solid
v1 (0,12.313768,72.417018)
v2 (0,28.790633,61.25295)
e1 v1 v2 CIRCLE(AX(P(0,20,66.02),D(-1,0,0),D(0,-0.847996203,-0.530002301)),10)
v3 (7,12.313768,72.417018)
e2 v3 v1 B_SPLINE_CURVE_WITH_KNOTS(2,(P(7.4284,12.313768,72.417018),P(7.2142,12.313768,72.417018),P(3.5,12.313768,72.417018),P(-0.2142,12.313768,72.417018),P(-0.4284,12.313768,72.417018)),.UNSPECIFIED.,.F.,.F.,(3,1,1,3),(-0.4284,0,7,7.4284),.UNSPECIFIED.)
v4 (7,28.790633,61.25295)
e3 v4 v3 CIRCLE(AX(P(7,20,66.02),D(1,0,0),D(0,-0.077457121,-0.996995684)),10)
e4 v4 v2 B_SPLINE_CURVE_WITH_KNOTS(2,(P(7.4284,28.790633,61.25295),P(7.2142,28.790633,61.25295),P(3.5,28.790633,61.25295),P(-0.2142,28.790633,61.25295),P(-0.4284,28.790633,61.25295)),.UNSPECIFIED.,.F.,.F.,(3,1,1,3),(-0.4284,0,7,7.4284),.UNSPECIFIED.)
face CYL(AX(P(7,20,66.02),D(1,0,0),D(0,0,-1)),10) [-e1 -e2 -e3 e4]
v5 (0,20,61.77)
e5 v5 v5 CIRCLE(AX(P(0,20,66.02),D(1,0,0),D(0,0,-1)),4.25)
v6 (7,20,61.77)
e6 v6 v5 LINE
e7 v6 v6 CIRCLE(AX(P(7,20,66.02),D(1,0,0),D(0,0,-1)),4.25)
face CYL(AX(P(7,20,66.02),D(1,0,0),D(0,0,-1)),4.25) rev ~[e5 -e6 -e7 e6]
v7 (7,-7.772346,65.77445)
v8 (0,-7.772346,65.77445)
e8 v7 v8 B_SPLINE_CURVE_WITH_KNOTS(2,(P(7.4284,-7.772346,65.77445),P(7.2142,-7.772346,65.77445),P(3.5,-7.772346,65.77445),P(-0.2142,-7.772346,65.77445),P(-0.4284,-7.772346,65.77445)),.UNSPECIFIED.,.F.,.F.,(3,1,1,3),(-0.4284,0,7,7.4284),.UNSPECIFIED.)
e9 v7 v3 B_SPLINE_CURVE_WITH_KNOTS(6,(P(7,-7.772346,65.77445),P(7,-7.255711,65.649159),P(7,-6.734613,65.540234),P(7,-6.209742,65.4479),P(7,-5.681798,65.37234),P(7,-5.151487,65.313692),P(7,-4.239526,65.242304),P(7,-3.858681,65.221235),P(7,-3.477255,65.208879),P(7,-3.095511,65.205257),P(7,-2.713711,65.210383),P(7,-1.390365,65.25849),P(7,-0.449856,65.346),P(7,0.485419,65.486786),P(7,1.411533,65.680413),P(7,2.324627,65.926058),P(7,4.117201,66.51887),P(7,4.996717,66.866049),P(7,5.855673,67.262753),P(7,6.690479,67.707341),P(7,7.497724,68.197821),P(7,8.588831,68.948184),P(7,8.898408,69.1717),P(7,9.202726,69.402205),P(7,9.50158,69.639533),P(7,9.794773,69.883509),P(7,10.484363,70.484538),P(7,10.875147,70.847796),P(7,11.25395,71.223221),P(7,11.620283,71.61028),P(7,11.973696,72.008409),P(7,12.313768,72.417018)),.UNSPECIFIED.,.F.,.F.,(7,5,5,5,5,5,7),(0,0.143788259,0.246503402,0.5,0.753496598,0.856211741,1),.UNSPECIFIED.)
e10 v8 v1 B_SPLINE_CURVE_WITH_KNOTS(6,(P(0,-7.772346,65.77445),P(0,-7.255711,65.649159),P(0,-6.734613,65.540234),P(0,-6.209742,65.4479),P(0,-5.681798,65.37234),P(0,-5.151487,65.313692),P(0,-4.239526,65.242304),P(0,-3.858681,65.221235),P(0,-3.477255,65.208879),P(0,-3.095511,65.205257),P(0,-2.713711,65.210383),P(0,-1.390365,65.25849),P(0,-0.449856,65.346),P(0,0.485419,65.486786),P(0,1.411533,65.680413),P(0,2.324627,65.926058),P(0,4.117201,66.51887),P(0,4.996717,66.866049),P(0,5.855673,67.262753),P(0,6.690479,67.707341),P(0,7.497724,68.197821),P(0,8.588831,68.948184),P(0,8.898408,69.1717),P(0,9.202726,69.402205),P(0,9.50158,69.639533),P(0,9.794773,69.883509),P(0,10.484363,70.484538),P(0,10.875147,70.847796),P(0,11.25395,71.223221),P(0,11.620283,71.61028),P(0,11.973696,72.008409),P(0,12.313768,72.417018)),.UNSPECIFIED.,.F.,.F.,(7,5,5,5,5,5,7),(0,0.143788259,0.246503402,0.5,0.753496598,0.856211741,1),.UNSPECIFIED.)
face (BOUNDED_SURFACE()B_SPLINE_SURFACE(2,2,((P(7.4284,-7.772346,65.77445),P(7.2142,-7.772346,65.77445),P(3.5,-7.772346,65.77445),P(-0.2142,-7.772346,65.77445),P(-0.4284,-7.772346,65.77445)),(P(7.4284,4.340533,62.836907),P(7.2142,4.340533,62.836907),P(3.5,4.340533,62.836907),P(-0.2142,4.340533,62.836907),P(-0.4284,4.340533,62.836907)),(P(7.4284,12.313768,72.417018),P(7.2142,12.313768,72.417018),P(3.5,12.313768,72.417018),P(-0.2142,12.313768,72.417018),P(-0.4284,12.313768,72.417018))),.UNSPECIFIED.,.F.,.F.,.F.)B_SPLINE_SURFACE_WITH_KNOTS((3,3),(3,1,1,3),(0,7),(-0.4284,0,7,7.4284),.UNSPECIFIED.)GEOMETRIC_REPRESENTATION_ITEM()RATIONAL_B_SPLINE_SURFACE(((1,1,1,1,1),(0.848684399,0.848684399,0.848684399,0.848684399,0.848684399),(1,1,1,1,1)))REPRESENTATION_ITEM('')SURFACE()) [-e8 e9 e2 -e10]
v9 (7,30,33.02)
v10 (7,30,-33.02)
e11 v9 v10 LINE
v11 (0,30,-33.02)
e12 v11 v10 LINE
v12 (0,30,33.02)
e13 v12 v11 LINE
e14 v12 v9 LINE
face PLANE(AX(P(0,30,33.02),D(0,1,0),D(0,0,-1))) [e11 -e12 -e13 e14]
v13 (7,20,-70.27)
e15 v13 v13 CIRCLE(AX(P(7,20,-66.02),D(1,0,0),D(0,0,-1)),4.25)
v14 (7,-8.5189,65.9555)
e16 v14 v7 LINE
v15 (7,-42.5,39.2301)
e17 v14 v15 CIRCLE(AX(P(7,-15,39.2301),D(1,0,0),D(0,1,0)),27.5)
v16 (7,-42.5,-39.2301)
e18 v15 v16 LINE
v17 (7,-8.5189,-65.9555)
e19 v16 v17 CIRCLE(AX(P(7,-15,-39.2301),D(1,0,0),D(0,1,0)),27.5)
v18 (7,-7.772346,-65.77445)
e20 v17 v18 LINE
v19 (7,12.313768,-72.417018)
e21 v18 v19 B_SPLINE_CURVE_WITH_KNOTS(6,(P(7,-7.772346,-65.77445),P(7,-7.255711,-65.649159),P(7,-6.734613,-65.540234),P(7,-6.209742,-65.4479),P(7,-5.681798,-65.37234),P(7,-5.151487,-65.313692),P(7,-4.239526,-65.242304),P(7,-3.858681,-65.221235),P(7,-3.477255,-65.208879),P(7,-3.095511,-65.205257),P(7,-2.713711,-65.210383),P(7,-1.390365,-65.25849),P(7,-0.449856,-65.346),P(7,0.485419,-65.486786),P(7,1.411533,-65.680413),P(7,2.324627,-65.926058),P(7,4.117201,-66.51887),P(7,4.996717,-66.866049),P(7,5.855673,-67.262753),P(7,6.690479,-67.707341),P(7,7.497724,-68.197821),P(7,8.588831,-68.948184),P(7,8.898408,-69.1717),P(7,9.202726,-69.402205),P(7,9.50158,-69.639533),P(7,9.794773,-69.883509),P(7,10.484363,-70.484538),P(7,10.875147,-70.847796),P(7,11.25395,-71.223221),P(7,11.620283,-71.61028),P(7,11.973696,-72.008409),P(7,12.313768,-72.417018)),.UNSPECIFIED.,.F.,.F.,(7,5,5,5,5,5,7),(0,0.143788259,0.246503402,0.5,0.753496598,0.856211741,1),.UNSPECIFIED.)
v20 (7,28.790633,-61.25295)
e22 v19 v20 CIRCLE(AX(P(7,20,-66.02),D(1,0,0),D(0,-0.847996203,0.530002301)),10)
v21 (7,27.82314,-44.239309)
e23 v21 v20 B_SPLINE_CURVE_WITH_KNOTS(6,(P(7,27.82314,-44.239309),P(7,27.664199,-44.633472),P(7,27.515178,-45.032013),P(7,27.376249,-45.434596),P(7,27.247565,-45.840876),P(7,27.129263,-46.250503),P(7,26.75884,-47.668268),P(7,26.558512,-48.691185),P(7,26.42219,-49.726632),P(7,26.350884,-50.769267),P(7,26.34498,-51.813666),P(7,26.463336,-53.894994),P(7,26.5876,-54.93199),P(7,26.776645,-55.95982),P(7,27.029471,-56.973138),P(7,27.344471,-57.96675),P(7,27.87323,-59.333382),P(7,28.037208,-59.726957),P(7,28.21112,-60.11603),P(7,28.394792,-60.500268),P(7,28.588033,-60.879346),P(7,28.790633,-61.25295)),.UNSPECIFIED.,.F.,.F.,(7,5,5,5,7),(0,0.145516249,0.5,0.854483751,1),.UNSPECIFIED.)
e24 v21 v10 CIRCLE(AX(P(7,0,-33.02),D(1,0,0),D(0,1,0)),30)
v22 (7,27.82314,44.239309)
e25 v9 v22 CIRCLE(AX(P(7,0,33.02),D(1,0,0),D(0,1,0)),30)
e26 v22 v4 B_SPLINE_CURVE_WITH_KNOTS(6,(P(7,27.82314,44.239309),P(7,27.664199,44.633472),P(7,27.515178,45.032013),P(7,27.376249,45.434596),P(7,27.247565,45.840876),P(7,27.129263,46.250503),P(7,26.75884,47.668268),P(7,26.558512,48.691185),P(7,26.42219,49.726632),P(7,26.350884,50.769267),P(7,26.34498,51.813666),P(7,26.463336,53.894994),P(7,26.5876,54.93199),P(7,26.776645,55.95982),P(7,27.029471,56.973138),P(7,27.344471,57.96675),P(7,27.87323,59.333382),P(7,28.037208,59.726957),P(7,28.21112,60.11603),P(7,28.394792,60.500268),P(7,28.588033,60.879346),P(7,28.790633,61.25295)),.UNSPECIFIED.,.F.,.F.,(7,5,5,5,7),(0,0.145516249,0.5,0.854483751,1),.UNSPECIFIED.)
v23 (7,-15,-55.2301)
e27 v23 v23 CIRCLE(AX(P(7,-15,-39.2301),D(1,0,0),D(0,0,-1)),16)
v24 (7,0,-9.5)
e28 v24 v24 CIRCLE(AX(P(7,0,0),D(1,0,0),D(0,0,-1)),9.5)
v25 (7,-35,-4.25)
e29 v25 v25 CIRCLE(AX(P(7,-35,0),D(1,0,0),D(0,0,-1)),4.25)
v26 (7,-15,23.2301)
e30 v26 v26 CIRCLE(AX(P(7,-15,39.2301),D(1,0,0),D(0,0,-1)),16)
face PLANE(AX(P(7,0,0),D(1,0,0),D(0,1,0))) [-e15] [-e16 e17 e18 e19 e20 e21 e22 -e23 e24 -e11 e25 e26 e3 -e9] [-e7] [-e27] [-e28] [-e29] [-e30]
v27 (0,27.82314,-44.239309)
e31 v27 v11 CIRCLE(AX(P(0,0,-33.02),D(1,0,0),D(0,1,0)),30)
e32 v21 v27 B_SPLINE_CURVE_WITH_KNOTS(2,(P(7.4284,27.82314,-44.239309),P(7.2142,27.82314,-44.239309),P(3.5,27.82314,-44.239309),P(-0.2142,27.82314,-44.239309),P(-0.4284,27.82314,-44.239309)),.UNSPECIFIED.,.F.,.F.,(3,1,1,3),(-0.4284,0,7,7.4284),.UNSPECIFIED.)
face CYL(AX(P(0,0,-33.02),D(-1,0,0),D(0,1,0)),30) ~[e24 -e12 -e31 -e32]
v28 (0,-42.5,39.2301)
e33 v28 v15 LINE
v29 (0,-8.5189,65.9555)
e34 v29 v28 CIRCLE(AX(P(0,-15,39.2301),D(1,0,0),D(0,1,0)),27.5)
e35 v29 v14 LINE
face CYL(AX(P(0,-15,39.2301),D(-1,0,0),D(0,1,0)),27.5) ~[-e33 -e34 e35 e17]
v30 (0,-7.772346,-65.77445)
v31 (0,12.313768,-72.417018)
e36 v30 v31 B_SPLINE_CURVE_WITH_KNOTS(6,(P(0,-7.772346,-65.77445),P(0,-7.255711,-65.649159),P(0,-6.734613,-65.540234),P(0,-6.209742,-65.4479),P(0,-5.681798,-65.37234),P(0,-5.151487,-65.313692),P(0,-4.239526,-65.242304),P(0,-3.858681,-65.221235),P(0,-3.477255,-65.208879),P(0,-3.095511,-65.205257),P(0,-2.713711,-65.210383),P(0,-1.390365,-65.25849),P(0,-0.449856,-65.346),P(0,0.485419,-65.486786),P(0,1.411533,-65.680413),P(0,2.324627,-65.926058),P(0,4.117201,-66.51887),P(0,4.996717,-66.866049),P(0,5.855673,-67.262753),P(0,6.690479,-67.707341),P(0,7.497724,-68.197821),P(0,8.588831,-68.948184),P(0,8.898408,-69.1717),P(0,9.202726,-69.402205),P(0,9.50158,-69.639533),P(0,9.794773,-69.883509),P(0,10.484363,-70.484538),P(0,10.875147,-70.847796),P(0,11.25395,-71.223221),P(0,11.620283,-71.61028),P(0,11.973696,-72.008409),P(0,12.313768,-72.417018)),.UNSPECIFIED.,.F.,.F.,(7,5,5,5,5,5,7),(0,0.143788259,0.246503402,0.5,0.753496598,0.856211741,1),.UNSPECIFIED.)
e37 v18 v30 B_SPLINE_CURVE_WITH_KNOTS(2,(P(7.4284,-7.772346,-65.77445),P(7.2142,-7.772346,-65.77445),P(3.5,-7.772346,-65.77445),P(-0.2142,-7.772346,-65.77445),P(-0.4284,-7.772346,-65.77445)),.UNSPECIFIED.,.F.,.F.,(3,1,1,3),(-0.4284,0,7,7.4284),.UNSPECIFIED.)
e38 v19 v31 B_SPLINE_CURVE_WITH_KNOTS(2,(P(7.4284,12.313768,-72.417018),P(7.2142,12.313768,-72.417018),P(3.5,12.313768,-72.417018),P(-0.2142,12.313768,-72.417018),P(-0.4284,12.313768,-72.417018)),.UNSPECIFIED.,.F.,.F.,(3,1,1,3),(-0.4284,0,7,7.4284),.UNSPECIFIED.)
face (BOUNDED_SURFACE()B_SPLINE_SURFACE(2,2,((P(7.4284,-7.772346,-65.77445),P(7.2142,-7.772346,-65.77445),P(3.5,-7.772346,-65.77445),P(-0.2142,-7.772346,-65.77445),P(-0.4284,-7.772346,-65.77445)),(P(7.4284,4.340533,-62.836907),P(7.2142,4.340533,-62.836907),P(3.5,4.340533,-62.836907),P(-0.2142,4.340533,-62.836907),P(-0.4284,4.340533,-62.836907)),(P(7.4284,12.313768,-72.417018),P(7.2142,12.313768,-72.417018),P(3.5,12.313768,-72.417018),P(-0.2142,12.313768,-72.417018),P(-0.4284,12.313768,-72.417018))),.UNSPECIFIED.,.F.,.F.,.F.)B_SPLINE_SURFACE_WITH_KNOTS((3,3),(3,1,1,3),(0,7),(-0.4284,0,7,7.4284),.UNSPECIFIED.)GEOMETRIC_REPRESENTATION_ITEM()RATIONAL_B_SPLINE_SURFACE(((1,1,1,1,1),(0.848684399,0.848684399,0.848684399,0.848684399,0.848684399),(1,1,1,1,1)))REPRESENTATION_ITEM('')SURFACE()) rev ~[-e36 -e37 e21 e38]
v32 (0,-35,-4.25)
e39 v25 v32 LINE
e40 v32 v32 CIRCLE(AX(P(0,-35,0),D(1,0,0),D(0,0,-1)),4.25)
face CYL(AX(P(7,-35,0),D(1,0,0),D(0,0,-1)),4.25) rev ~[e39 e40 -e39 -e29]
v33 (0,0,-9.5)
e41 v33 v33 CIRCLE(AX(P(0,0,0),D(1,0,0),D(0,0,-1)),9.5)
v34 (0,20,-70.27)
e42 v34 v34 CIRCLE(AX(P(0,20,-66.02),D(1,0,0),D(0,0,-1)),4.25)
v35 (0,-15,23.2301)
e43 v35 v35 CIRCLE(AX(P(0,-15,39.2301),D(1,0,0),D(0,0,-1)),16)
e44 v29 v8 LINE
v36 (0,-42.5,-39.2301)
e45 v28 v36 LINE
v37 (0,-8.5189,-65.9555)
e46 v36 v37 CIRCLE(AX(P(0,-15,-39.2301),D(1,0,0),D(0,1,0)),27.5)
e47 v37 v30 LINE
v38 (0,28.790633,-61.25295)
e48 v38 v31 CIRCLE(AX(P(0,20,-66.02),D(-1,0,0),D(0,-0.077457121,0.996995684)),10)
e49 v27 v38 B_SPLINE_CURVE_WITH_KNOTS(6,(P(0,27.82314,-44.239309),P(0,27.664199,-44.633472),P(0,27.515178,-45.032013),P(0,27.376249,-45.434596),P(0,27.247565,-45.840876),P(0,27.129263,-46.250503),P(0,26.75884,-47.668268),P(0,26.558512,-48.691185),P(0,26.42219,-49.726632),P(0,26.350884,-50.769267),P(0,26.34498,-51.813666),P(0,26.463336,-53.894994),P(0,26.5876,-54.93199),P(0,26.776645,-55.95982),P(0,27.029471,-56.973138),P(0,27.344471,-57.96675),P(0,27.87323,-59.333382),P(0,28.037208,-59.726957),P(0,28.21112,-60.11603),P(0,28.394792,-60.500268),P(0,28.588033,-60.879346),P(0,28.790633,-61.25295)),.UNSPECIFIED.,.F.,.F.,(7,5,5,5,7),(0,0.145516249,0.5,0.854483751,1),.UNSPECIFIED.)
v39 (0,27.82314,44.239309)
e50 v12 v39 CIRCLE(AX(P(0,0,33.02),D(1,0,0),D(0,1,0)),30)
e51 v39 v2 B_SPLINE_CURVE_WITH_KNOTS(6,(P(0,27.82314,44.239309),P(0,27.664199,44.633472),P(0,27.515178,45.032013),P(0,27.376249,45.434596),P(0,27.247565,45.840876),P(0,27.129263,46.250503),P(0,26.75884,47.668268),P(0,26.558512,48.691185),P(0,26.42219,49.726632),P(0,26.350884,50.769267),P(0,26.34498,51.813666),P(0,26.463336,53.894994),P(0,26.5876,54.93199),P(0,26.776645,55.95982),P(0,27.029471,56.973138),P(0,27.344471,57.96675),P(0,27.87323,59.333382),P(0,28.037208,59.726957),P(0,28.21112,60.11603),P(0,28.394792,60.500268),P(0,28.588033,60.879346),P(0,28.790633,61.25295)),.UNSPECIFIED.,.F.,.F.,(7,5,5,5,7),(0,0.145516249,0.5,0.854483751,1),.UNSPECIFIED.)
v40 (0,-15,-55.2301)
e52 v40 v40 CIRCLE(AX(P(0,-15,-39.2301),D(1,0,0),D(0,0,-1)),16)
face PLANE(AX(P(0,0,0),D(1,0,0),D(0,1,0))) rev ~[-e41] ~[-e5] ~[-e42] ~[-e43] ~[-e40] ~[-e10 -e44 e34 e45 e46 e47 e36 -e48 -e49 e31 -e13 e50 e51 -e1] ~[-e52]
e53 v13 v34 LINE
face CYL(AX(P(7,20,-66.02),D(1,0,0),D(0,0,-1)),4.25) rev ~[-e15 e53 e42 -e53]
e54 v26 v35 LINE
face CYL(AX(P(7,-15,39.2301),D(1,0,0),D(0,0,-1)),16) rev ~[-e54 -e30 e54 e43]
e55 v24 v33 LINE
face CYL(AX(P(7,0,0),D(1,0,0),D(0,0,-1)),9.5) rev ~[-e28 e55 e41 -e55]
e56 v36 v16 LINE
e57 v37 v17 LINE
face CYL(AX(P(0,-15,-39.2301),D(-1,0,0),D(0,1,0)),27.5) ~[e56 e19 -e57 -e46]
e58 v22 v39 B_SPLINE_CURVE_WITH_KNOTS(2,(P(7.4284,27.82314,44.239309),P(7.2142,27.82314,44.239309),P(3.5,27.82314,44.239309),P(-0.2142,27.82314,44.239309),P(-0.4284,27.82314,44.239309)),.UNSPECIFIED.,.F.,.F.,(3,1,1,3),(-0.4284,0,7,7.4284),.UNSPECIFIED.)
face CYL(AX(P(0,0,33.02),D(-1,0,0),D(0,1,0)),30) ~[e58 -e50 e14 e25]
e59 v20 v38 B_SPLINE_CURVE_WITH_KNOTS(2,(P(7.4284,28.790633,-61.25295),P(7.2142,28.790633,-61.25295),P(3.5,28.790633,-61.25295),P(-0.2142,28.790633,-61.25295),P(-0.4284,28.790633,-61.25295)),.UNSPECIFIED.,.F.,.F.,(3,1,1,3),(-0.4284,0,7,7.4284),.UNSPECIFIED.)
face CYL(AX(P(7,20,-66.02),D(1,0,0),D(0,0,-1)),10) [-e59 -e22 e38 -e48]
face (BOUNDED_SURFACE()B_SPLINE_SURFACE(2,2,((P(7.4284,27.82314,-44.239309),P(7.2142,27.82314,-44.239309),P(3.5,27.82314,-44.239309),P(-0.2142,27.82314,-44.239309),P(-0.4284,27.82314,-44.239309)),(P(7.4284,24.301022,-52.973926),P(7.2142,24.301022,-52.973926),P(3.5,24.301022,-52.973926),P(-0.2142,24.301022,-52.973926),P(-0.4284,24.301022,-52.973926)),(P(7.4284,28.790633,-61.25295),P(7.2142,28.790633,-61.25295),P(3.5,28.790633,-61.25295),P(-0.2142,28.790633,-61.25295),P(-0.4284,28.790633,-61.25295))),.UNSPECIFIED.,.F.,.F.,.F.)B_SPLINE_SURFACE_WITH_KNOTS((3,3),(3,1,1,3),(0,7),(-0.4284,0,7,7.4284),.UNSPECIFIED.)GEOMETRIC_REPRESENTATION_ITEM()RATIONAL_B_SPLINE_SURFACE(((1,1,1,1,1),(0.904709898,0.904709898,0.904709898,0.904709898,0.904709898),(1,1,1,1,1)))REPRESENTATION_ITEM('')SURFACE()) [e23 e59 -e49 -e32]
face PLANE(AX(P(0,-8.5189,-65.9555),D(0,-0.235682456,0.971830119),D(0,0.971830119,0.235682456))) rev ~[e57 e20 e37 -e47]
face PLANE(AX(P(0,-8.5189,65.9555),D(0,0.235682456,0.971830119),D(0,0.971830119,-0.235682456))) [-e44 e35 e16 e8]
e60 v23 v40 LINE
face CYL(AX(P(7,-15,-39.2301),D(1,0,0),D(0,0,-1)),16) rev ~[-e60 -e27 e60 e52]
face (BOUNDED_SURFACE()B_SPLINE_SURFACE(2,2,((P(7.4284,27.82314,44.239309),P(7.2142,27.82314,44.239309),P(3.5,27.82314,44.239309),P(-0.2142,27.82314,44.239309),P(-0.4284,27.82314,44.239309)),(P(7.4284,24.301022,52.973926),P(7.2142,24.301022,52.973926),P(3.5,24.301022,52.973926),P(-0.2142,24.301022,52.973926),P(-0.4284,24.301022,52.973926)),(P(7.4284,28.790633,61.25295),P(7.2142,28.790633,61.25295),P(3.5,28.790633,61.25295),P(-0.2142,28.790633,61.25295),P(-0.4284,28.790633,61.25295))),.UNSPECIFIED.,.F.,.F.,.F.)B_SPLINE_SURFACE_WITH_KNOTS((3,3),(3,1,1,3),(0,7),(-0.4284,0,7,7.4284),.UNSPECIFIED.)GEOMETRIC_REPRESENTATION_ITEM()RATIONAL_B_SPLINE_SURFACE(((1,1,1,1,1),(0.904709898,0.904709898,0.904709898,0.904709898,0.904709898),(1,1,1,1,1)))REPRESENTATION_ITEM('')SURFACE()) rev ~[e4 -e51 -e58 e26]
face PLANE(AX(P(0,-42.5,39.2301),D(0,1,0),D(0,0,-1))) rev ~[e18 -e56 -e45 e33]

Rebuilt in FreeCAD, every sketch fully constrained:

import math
import FreeCAD as App
import Part
import Sketcher

V = App.Vector
Q = App.Units.Quantity


def edges_at(feature, points):
    """Names of the edges that pass closest to the given points."""
    edges = feature.Shape.Edges
    near = lambda p: min(range(len(edges)), key=lambda i: edges[i].distToShape(Part.Vertex(*p))[0])
    return sorted({f"Edge{near(p) + 1}" for p in points})

doc = App.newDocument("Part")
body = doc.addObject("PartDesign::Body", "Body")

sketch1 = doc.addObject("Sketcher::SketchObject", "Sketch")
body.addObject(sketch1)
sketch1.AttachmentSupport = (doc.YZ_Plane, [""])
sketch1.MapMode = "FlatFace"
sketch1.addGeometry(Part.LineSegment(V(30, -33, 0), V(30, 33, 0)), False)
sketch1.addGeometry(Part.ArcOfCircle(Part.Circle(V(0, 33, 0), V(0, 0, 1), 30), math.radians(0), math.radians(76)), False)
sketch1.addGeometry(Part.LineSegment(V(7, 62, 0), V(-9, 66, 0)), False)
sketch1.addGeometry(Part.ArcOfCircle(Part.Circle(V(-15, 39, 0), V(0, 0, 1), 28), math.radians(76), math.radians(180)), False)
sketch1.addGeometry(Part.LineSegment(V(-42, 39, 0), V(-42, -39, 0)), False)
sketch1.addGeometry(Part.ArcOfCircle(Part.Circle(V(-15, -39, 0), V(0, 0, 1), 28), math.radians(180), math.radians(284)), False)
sketch1.addGeometry(Part.LineSegment(V(-9, -66, 0), V(7, -62, 0)), False)
sketch1.addGeometry(Part.ArcOfCircle(Part.Circle(V(0, -33, 0), V(0, 0, 1), 30), math.radians(-76), math.radians(0)), False)
sketch1.addConstraint(Sketcher.Constraint("Tangent", 0, 2, 1, 1))
sketch1.addConstraint(Sketcher.Constraint("Tangent", 1, 2, 2, 1))
sketch1.addConstraint(Sketcher.Constraint("Tangent", 2, 2, 3, 1))
sketch1.addConstraint(Sketcher.Constraint("Tangent", 3, 2, 4, 1))
sketch1.addConstraint(Sketcher.Constraint("Tangent", 4, 2, 5, 1))
sketch1.addConstraint(Sketcher.Constraint("Tangent", 5, 2, 6, 1))
sketch1.addConstraint(Sketcher.Constraint("Tangent", 6, 2, 7, 1))
sketch1.addConstraint(Sketcher.Constraint("Tangent", 7, 2, 0, 1))
sketch1.addConstraint(Sketcher.Constraint("Vertical", 0))
sketch1.addConstraint(Sketcher.Constraint("Vertical", 4))
sketch1.addConstraint(Sketcher.Constraint("Equal", 3, 5))
sketch1.addConstraint(Sketcher.Constraint("Equal", 1, 7))
sketch1.addConstraint(Sketcher.Constraint("Symmetric", 1, 3, 7, 3, -1, 1))
sketch1.addConstraint(Sketcher.Constraint("Vertical", 2, 2, 5, 2))
sketch1.addConstraint(Sketcher.Constraint("Radius", 1, Q("30 mm")))
sketch1.addConstraint(Sketcher.Constraint("Radius", 3, Q("27.5 mm")))
sketch1.addConstraint(Sketcher.Constraint("DistanceX", 3, 3, -1, 1, Q("15 mm")))
sketch1.addConstraint(Sketcher.Constraint("DistanceY", -1, 1, 1, 3, Q("33.02 mm")))
sketch1.addConstraint(Sketcher.Constraint("DistanceY", -1, 1, 3, 3, Q("39.23 mm")))
pad1 = doc.addObject("PartDesign::Pad", "Pad")
body.addObject(pad1)
pad1.Profile = sketch1
pad1.Length = 7

sketch2 = doc.addObject("Sketcher::SketchObject", "Sketch001")
body.addObject(sketch2)
sketch2.AttachmentSupport = (doc.YZ_Plane, [""])
sketch2.MapMode = "FlatFace"
sketch2.AttachmentOffset = App.Placement(V(0, 0, 7), App.Rotation())
sketch2.addGeometry(Part.Circle(V(0, 0, 0), V(0, 0, 1), 10), False)
sketch2.addGeometry(Part.Circle(V(-15, -39, 0), V(0, 0, 1), 16), False)
sketch2.addGeometry(Part.Circle(V(-15, 39, 0), V(0, 0, 1), 16), False)
sketch2.addConstraint(Sketcher.Constraint("Coincident", 0, 3, -1, 1))
sketch2.addConstraint(Sketcher.Constraint("Equal", 1, 2))
sketch2.addConstraint(Sketcher.Constraint("Symmetric", 1, 3, 2, 3, -1))
sketch2.addConstraint(Sketcher.Constraint("Diameter", 0, Q("19 mm")))
sketch2.addConstraint(Sketcher.Constraint("Diameter", 1, Q("32 mm")))
sketch2.addConstraint(Sketcher.Constraint("DistanceX", 1, 3, -1, 1, Q("15 mm")))
sketch2.addConstraint(Sketcher.Constraint("DistanceY", 1, 3, -1, 1, Q("39.23 mm")))
pocket1 = doc.addObject("PartDesign::Pocket", "Pocket")
body.addObject(pocket1)
pocket1.Profile = sketch2
pocket1.Length = 10

sketch3 = doc.addObject("Sketcher::SketchObject", "Sketch002")
body.addObject(sketch3)
sketch3.AttachmentSupport = (doc.YZ_Plane, [""])
sketch3.MapMode = "FlatFace"
sketch3.AttachmentOffset = App.Placement(V(0, 0, 7), App.Rotation())
sketch3.addGeometry(Part.Circle(V(20, 66, 0), V(0, 0, 1), 10), False)
sketch3.addGeometry(Part.Circle(V(20, 66, 0), V(0, 0, 1), 4.2), False)
sketch3.addGeometry(Part.Circle(V(20, -66, 0), V(0, 0, 1), 10), False)
sketch3.addGeometry(Part.Circle(V(20, -66, 0), V(0, 0, 1), 4.2), False)
sketch3.addConstraint(Sketcher.Constraint("Coincident", 1, 3, 0, 3))
sketch3.addConstraint(Sketcher.Constraint("Coincident", 3, 3, 2, 3))
sketch3.addConstraint(Sketcher.Constraint("Equal", 0, 2))
sketch3.addConstraint(Sketcher.Constraint("Equal", 1, 3))
sketch3.addConstraint(Sketcher.Constraint("Symmetric", 0, 3, 2, 3, -1))
sketch3.addConstraint(Sketcher.Constraint("Diameter", 0, Q("20 mm")))
sketch3.addConstraint(Sketcher.Constraint("DistanceX", -1, 1, 0, 3, Q("20 mm")))
sketch3.addConstraint(Sketcher.Constraint("Diameter", 1, Q("8.5 mm")))
sketch3.addConstraint(Sketcher.Constraint("DistanceY", -1, 1, 0, 3, Q("66.02 mm")))
pad2 = doc.addObject("PartDesign::Pad", "Pad001")
body.addObject(pad2)
pad2.Profile = sketch3
pad2.Length = 7
pad2.Reversed = True
doc.recompute()

fillet = doc.addObject("PartDesign::Fillet", "Fillet")
body.addObject(fillet)
fillet.Base = (pad2, edges_at(pad2, [
    (3.5, 19.225, 56.05),
    (3.5, 11.52, 60.72),
    (3.5, 19.225, -56.05),
    (3.5, 11.52, -60.72),
]))
fillet.Radius = 20

sketch4 = doc.addObject("Sketcher::SketchObject", "Sketch003")
body.addObject(sketch4)
sketch4.AttachmentSupport = (doc.YZ_Plane, [""])
sketch4.MapMode = "FlatFace"
sketch4.AttachmentOffset = App.Placement(V(0, 0, 7), App.Rotation())
sketch4.addGeometry(Part.Circle(V(-35, 0, 0), V(0, 0, 1), 4.2), False)
sketch4.addConstraint(Sketcher.Constraint("PointOnObject", 0, 3, -1))
sketch4.addConstraint(Sketcher.Constraint("Diameter", 0, Q("8.5 mm")))
sketch4.addConstraint(Sketcher.Constraint("DistanceX", 0, 3, -1, 1, Q("35 mm")))
pocket2 = doc.addObject("PartDesign::Pocket", "Pocket001")
body.addObject(pocket2)
pocket2.Profile = sketch4
pocket2.Length = 10

doc.recompute()
